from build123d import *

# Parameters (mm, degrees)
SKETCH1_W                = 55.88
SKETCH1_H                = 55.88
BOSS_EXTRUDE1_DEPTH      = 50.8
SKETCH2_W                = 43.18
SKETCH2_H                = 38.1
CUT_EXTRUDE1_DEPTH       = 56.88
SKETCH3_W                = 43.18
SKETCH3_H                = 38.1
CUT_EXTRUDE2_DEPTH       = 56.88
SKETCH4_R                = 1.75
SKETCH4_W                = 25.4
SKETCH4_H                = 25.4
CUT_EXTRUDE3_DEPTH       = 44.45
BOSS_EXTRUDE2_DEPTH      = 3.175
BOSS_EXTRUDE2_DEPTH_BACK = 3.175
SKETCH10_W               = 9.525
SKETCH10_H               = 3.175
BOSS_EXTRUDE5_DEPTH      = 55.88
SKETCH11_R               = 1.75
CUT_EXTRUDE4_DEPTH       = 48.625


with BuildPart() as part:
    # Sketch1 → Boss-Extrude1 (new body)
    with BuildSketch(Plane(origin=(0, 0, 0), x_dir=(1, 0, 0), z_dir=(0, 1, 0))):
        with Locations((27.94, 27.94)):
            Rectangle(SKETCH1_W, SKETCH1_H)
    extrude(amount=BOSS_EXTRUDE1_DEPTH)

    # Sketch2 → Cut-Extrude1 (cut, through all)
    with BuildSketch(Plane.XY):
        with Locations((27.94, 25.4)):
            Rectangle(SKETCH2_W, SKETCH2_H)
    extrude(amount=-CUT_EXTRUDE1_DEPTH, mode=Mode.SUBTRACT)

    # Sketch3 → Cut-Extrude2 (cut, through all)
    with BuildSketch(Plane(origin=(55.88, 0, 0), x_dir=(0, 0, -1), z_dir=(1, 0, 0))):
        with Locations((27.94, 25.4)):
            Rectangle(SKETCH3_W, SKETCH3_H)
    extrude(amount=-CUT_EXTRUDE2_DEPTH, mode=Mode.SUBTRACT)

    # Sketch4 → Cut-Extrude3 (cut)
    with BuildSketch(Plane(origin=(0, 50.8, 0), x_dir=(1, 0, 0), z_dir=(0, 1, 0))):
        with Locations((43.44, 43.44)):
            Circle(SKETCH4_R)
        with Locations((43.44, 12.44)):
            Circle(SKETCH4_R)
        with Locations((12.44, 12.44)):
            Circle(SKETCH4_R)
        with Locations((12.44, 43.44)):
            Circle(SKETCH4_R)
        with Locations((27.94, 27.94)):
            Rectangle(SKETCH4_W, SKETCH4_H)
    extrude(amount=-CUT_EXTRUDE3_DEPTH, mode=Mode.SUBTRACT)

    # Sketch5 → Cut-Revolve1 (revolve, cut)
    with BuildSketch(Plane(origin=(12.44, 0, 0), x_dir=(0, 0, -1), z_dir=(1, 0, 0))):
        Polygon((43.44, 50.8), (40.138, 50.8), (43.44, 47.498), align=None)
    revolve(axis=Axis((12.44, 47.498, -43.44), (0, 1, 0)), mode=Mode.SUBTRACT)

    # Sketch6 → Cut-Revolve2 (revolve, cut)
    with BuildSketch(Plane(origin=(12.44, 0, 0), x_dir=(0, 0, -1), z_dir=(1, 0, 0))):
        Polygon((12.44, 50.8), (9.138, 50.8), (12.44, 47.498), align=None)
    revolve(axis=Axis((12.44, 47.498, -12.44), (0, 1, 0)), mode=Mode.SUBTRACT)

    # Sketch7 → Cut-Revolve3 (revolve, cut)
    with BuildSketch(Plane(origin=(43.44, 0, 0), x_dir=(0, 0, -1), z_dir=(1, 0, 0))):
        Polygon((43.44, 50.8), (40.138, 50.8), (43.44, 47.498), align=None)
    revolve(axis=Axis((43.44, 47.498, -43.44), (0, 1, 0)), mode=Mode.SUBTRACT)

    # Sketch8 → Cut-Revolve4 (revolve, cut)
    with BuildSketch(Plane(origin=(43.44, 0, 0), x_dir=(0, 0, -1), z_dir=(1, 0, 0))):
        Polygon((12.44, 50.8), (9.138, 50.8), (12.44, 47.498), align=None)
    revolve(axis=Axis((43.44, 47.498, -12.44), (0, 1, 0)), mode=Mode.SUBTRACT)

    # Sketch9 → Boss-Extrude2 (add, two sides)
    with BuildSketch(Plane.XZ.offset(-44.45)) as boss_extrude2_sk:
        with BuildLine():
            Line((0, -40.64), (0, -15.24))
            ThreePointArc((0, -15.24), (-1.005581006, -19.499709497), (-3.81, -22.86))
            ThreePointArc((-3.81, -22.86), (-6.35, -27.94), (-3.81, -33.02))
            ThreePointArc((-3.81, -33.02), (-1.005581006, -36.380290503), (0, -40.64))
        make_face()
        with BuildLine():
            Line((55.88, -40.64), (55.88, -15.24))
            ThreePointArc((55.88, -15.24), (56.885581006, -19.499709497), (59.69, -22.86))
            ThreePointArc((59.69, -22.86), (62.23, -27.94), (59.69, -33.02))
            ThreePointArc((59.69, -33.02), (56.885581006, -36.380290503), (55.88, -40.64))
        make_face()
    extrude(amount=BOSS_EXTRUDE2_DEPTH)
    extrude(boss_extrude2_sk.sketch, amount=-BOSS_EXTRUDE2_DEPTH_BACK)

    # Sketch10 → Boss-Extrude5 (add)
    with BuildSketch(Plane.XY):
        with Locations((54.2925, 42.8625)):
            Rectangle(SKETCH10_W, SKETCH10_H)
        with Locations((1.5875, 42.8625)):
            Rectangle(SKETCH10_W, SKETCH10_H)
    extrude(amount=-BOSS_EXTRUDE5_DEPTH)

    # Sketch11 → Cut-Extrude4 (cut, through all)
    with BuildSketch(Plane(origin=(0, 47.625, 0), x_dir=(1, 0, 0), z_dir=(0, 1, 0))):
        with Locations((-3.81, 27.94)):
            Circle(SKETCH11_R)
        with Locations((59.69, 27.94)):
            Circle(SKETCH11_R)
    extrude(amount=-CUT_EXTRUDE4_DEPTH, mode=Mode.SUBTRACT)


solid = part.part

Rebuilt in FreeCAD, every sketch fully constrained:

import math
import FreeCAD as App
import Part
import Sketcher

V = App.Vector
Q = App.Units.Quantity


def add_polygon(sketch, points):
    """Adds a closed chain of lines whose ends are joined by coincident constraints."""
    first, n = sketch.GeometryCount, len(points)
    for a, b in zip(points, points[1:] + points[:1]):
        sketch.addGeometry(Part.LineSegment(App.Vector(*a, 0), App.Vector(*b, 0)), False)
    for i in range(n):
        sketch.addConstraint(Sketcher.Constraint("Coincident", first + i, 2, first + (i + 1) % n, 1))

doc = App.newDocument("Part")
body = doc.addObject("PartDesign::Body", "Body")

# Sketch on XZ plane
sketch1 = body.newObject("Sketcher::SketchObject", "Sketch")
sketch1.AttachmentSupport = (doc.getObject("XZ_Plane"), [""])
sketch1.MapMode = "FlatFace"
add_polygon(sketch1, [(0, -56), (0, 0), (56, 0), (56, -56)])  # lines 0-3
sketch1.addConstraint([
    Sketcher.Constraint("Vertical", 0),
    Sketcher.Constraint("Horizontal", 1),
    Sketcher.Constraint("Vertical", 2),
    Sketcher.Constraint("Horizontal", 3),
    Sketcher.Constraint("Coincident", 0, 2, -1, 1),
    Sketcher.Constraint("Equal", 3, 0),
    Sketcher.Constraint("DistanceX", 1, 1, 1, 2, Q("2.2 in")),
])
pad1 = body.newObject("PartDesign::Pad", "Pad")
pad1.Profile = sketch1
pad1.Length = Q("2 in")
pad1.Reversed = True

# Sketch on XY plane
sketch2 = body.newObject("Sketcher::SketchObject", "Sketch001")
sketch2.AttachmentSupport = (doc.getObject("XY_Plane"), [""])
sketch2.MapMode = "FlatFace"
add_polygon(sketch2, [(6, 44), (6, 6), (50, 6), (50, 44)])  # lines 0-3
sketch2.addConstraint([
    Sketcher.Constraint("Vertical", 0),
    Sketcher.Constraint("Horizontal", 1),
    Sketcher.Constraint("Vertical", 2),
    Sketcher.Constraint("Horizontal", 3),
    Sketcher.Constraint("DistanceX", 1, 1, 1, 2, Q("1.7 in")),
    Sketcher.Constraint("DistanceY", 0, 2, 0, 1, Q("1.5 in")),
    Sketcher.Constraint("DistanceX", -1, 1, 0, 2, Q("0.25 in")),
    Sketcher.Constraint("DistanceY", -1, 1, 0, 2, Q("0.25 in")),
])
pocket1 = body.newObject("PartDesign::Pocket", "Pocket")
pocket1.Profile = sketch2
pocket1.Type = "ThroughAll"

# Sketch on YZ plane
sketch3 = body.newObject("Sketcher::SketchObject", "Sketch002")
sketch3.AttachmentSupport = (doc.getObject("YZ_Plane"), [""])
sketch3.MapMode = "FlatFace"
sketch3.AttachmentOffset = App.Placement(V(0, 0, 2.2 * 25.4), App.Rotation())
add_polygon(sketch3, [(44, -6), (6, -6), (6, -50), (44, -50)])  # lines 0-3
sketch3.addConstraint([
    Sketcher.Constraint("Horizontal", 0),
    Sketcher.Constraint("Vertical", 1),
    Sketcher.Constraint("Horizontal", 2),
    Sketcher.Constraint("Vertical", 3),
    Sketcher.Constraint("DistanceX", 0, 2, 0, 1, Q("1.5 in")),
    Sketcher.Constraint("DistanceY", 1, 2, 1, 1, Q("1.7 in")),
    Sketcher.Constraint("DistanceX", -1, 1, 0, 2, Q("0.25 in")),
    Sketcher.Constraint("DistanceY", 0, 2, -1, 1, Q("0.25 in")),
])
pocket2 = body.newObject("PartDesign::Pocket", "Pocket001")
pocket2.Profile = sketch3
pocket2.Type = "ThroughAll"

# Sketch on XZ plane
sketch4 = body.newObject("Sketcher::SketchObject", "Sketch003")
sketch4.AttachmentSupport = (doc.getObject("XZ_Plane"), [""])
sketch4.MapMode = "FlatFace"
sketch4.AttachmentOffset = App.Placement(V(0, 0, -2 * 25.4), App.Rotation())
sketch4.addGeometry(Part.Circle(V(43.4, -43.4, 0), V(0, 0, 1), 1.8), False)  # 0
sketch4.addGeometry(Part.Circle(V(43.4, -12.4, 0), V(0, 0, 1), 1.8), False)  # 1
sketch4.addGeometry(Part.Circle(V(12.4, -12.4, 0), V(0, 0, 1), 1.8), False)  # 2
sketch4.addGeometry(Part.Circle(V(12.4, -43.4, 0), V(0, 0, 1), 1.8), False)  # 3
add_polygon(sketch4, [(15.2, -40.6), (15.2, -15.2), (40.6, -15.2), (40.6, -40.6)])  # lines 4-7
sketch4.addConstraint([
    Sketcher.Constraint("Vertical", 4),
    Sketcher.Constraint("Horizontal", 5),
    Sketcher.Constraint("Vertical", 6),
    Sketcher.Constraint("Horizontal", 7),
    Sketcher.Constraint("Equal", 0, 1),
    Sketcher.Constraint("Equal", 1, 2),
    Sketcher.Constraint("Equal", 2, 3),
    Sketcher.Constraint("Horizontal", 1, 3, 2, 3),
    Sketcher.Constraint("Horizontal", 0, 3, 3, 3),
    Sketcher.Constraint("Vertical", 0, 3, 1, 3),
    Sketcher.Constraint("Vertical", 2, 3, 3, 3),
    Sketcher.Constraint("Equal", 7, 4),
    Sketcher.Constraint("DistanceX", 5, 1, 5, 2, Q("1 in")),
    Sketcher.Constraint("DistanceX", -1, 1, 4, 2, Q("0.6 in")),
    Sketcher.Constraint("DistanceY", 4, 2, -1, 1, Q("0.6 in")),
    Sketcher.Constraint("Diameter", 0, 3.5),
    Sketcher.Constraint("DistanceX", -1, 1, 0, 3, 43.44),
    Sketcher.Constraint("DistanceY", 0, 3, -1, 1, 43.44),
    Sketcher.Constraint("DistanceY", 1, 3, -1, 1, 12.44),
    Sketcher.Constraint("DistanceX", -1, 1, 2, 3, 12.44),
])
pocket3 = body.newObject("PartDesign::Pocket", "Pocket002")
pocket3.Profile = sketch4
pocket3.Length = Q("1.75 in")
pocket3.Reversed = True

# Sketch on YZ plane
sketch5 = body.newObject("Sketcher::SketchObject", "Sketch004")
sketch5.AttachmentSupport = (doc.getObject("YZ_Plane"), [""])
sketch5.MapMode = "FlatFace"
sketch5.AttachmentOffset = App.Placement(V(0, 0, 12.44), App.Rotation())
add_polygon(sketch5, [(50.8, -43.4), (50.8, -40.1), (47.5, -43.4)])  # lines 0-2
sketch5.addGeometry(Part.LineSegment(V(47.5, -43.4, 0), V(50.8, -43.4, 0)), True)  # axis
sketch5.addConstraint([
    Sketcher.Constraint("Vertical", 0),
    Sketcher.Constraint("Horizontal", 2),
    Sketcher.Constraint("Horizontal", 3),
    Sketcher.Constraint("Coincident", 3, 1, 1, 2),
    Sketcher.Constraint("Vertical", 0, 2, 3, 2),
    Sketcher.Constraint("Equal", 3, 0),
    Sketcher.Constraint("DistanceX", -1, 1, 0, 2, Q("2 in")),
    Sketcher.Constraint("DistanceX", 2, 1, 2, 2, Q("0.13 in")),
    Sketcher.Constraint("DistanceY", 0, 2, -1, 1, 40.138),
])
groove = body.newObject("PartDesign::Groove", "Groove")
groove.Profile = sketch5
groove.ReferenceAxis = (sketch5, ["Axis0"])
groove.Angle = 360

# Sketch on YZ plane
sketch6 = body.newObject("Sketcher::SketchObject", "Sketch005")
sketch6.AttachmentSupport = (doc.getObject("YZ_Plane"), [""])
sketch6.MapMode = "FlatFace"
sketch6.AttachmentOffset = App.Placement(V(0, 0, 12.44), App.Rotation())
add_polygon(sketch6, [(50.8, -12.4), (50.8, -9.1), (47.5, -12.4)])  # lines 0-2
sketch6.addGeometry(Part.LineSegment(V(47.5, -12.4, 0), V(50.8, -12.4, 0)), True)  # axis
sketch6.addConstraint([
    Sketcher.Constraint("Vertical", 0),
    Sketcher.Constraint("Horizontal", 2),
    Sketcher.Constraint("Horizontal", 3),
    Sketcher.Constraint("Coincident", 3, 1, 1, 2),
    Sketcher.Constraint("Vertical", 0, 2, 3, 2),
    Sketcher.Constraint("Equal", 3, 0),
    Sketcher.Constraint("DistanceX", -1, 1, 0, 2, Q("2 in")),
    Sketcher.Constraint("DistanceX", 2, 1, 2, 2, Q("0.13 in")),
    Sketcher.Constraint("DistanceY", 0, 2, -1, 1, 9.138),
])
groove2 = body.newObject("PartDesign::Groove", "Groove001")
groove2.Profile = sketch6
groove2.ReferenceAxis = (sketch6, ["Axis0"])
groove2.Angle = 360

# Sketch on YZ plane
sketch7 = body.newObject("Sketcher::SketchObject", "Sketch006")
sketch7.AttachmentSupport = (doc.getObject("YZ_Plane"), [""])
sketch7.MapMode = "FlatFace"
sketch7.AttachmentOffset = App.Placement(V(0, 0, 43.44), App.Rotation())
add_polygon(sketch7, [(50.8, -43.4), (50.8, -40.1), (47.5, -43.4)])  # lines 0-2
sketch7.addGeometry(Part.LineSegment(V(47.5, -43.4, 0), V(50.8, -43.4, 0)), True)  # axis
sketch7.addConstraint([
    Sketcher.Constraint("Vertical", 0),
    Sketcher.Constraint("Horizontal", 2),
    Sketcher.Constraint("Horizontal", 3),
    Sketcher.Constraint("Coincident", 3, 1, 1, 2),
    Sketcher.Constraint("Vertical", 0, 2, 3, 2),
    Sketcher.Constraint("Equal", 3, 0),
    Sketcher.Constraint("DistanceX", -1, 1, 0, 2, Q("2 in")),
    Sketcher.Constraint("DistanceX", 2, 1, 2, 2, Q("0.13 in")),
    Sketcher.Constraint("DistanceY", 0, 2, -1, 1, 40.138),
])
groove3 = body.newObject("PartDesign::Groove", "Groove002")
groove3.Profile = sketch7
groove3.ReferenceAxis = (sketch7, ["Axis0"])
groove3.Angle = 360

# Sketch on YZ plane
sketch8 = body.newObject("Sketcher::SketchObject", "Sketch007")
sketch8.AttachmentSupport = (doc.getObject("YZ_Plane"), [""])
sketch8.MapMode = "FlatFace"
sketch8.AttachmentOffset = App.Placement(V(0, 0, 43.44), App.Rotation())
add_polygon(sketch8, [(50.8, -12.4), (50.8, -9.1), (47.5, -12.4)])  # lines 0-2
sketch8.addGeometry(Part.LineSegment(V(47.5, -12.4, 0), V(50.8, -12.4, 0)), True)  # axis
sketch8.addConstraint([
    Sketcher.Constraint("Vertical", 0),
    Sketcher.Constraint("Horizontal", 2),
    Sketcher.Constraint("Horizontal", 3),
    Sketcher.Constraint("Coincident", 3, 1, 1, 2),
    Sketcher.Constraint("Vertical", 0, 2, 3, 2),
    Sketcher.Constraint("Equal", 3, 0),
    Sketcher.Constraint("DistanceX", -1, 1, 0, 2, Q("2 in")),
    Sketcher.Constraint("DistanceX", 2, 1, 2, 2, Q("0.13 in")),
    Sketcher.Constraint("DistanceY", 0, 2, -1, 1, 9.138),
])
groove4 = body.newObject("PartDesign::Groove", "Groove003")
groove4.Profile = sketch8
groove4.ReferenceAxis = (sketch8, ["Axis0"])
groove4.Angle = 360

# Sketch on XZ plane
sketch9 = body.newObject("Sketcher::SketchObject", "Sketch008")
sketch9.AttachmentSupport = (doc.getObject("XZ_Plane"), [""])
sketch9.MapMode = "FlatFace"
sketch9.AttachmentOffset = App.Placement(V(0, 0, -1.75 * 25.4), App.Rotation())
sketch9.addGeometry([
    Part.LineSegment(V(0, -41, 0), V(0, -15, 0)),  # 0
    Part.ArcOfCircle(Part.Circle(V(-10, -15, 0), V(0, 0, 1), 10), math.radians(-53), math.radians(0)),  # 1
    Part.ArcOfCircle(Part.Circle(V(0, -28, 0), V(0, 0, 1), 6), math.radians(127), math.radians(233)),  # 2
    Part.ArcOfCircle(Part.Circle(V(-10, -41, 0), V(0, 0, 1), 10), math.radians(0), math.radians(53)),  # 3
    Part.LineSegment(V(56, -15, 0), V(56, -41, 0)),  # 4
    Part.ArcOfCircle(Part.Circle(V(65, -41, 0), V(0, 0, 1), 10), math.radians(127), math.radians(180)),  # 5
    Part.ArcOfCircle(Part.Circle(V(56, -28, 0), V(0, 0, 1), 6), math.radians(-53), math.radians(53)),  # 6
    Part.ArcOfCircle(Part.Circle(V(65, -15, 0), V(0, 0, 1), 10), math.radians(-180), math.radians(-127)),  # 7
], False)
sketch9.addConstraint([
    Sketcher.Constraint("Tangent", 0, 2, 1, 2),
    Sketcher.Constraint("Tangent", 1, 1, 2, 1),
    Sketcher.Constraint("Tangent", 2, 2, 3, 2),
    Sketcher.Constraint("Tangent", 3, 1, 0, 1),
    Sketcher.Constraint("Tangent", 4, 2, 5, 2),
    Sketcher.Constraint("Tangent", 5, 1, 6, 1),
    Sketcher.Constraint("Tangent", 6, 2, 7, 2),
    Sketcher.Constraint("Tangent", 7, 1, 4, 1),
    Sketcher.Constraint("Vertical", 0),
    Sketcher.Constraint("Vertical", 4),
    Sketcher.Constraint("Equal", 1, 3),
    Sketcher.Constraint("Equal", 3, 5),
    Sketcher.Constraint("Equal", 2, 6),
    Sketcher.Constraint("Equal", 5, 7),
    Sketcher.Constraint("PointOnObject", 2, 3, -2),
    Sketcher.Constraint("PointOnObject", 0, 2, -2),
    Sketcher.Constraint("Horizontal", 3, 3, 5, 3),
    Sketcher.Constraint("Horizontal", 2, 3, 6, 3),
    Sketcher.Constraint("DistanceY", 0, 1, 0, 2, Q("1 in")),
    Sketcher.Constraint("Radius", 2, Q("0.25 in")),
    Sketcher.Constraint("DistanceY", 1, 3, -1, 1, Q("0.6 in")),
    Sketcher.Constraint("DistanceX", -1, 1, 6, 3, Q("2.2 in")),
])
pad2 = body.newObject("PartDesign::Pad", "Pad001")
pad2.Profile = sketch9
pad2.Type = "TwoLengths"
pad2.Length = Q("0.125 in")
pad2.Length2 = Q("0.125 in")

# Sketch on XY plane
sketch10 = body.newObject("Sketcher::SketchObject", "Sketch009")
sketch10.AttachmentSupport = (doc.getObject("XY_Plane"), [""])
sketch10.MapMode = "FlatFace"
add_polygon(sketch10, [(49.5, 44.5), (49.5, 41.3), (59.1, 41.3), (59.1, 44.5)])  # lines 0-3
add_polygon(sketch10, [(-3.2, 44.5), (-3.2, 41.3), (6.3, 41.3), (6.3, 44.5)])  # lines 4-7
sketch10.addConstraint([
    Sketcher.Constraint("Vertical", 0),
    Sketcher.Constraint("Horizontal", 1),
    Sketcher.Constraint("Vertical", 2),
    Sketcher.Constraint("Horizontal", 3),
    Sketcher.Constraint("Vertical", 4),
    Sketcher.Constraint("Horizontal", 5),
    Sketcher.Constraint("Vertical", 6),
    Sketcher.Constraint("Horizontal", 7),
    Sketcher.Constraint("Horizontal", 1, 2, 4, 2),
    Sketcher.Constraint("Horizontal", 3, 2, 6, 2),
    Sketcher.Constraint("Equal", 3, 5),
    Sketcher.Constraint("DistanceX", 5, 2, 0, 2, Q("1.7 in")),
    Sketcher.Constraint("DistanceX", 1, 1, 1, 2, Q("0.375 in")),
    Sketcher.Constraint("DistanceY", 0, 2, 0, 1, Q("0.125 in")),
    Sketcher.Constraint("DistanceX", -1, 1, 0, 2, Q("1.95 in")),
    Sketcher.Constraint("DistanceY", -1, 1, 2, 2, Q("1.75 in")),
])
pad3 = body.newObject("PartDesign::Pad", "Pad002")
pad3.Profile = sketch10
pad3.Length = Q("2.2 in")
pad3.Reversed = True

# Sketch on XZ plane
sketch11 = body.newObject("Sketcher::SketchObject", "Sketch010")
sketch11.AttachmentSupport = (doc.getObject("XZ_Plane"), [""])
sketch11.MapMode = "FlatFace"
sketch11.AttachmentOffset = App.Placement(V(0, 0, -1.875 * 25.4), App.Rotation())
sketch11.addGeometry([
    Part.Circle(V(-3.8, -27.9, 0), V(0, 0, 1), 1.8),
    Part.Circle(V(59.7, -27.9, 0), V(0, 0, 1), 1.8),
], False)
sketch11.addConstraint([
    Sketcher.Constraint("Equal", 0, 1),
    Sketcher.Constraint("Horizontal", 0, 3, 1, 3),
    Sketcher.Constraint("DistanceY", 0, 3, -1, 1, Q("1.1 in")),
    Sketcher.Constraint("DistanceX", 0, 3, 1, 3, Q("2.5 in")),
    Sketcher.Constraint("Diameter", 0, 3.5),
    Sketcher.Constraint("DistanceX", 0, 3, -1, 1, Q("0.15 in")),
])
pocket4 = body.newObject("PartDesign::Pocket", "Pocket003")
pocket4.Profile = sketch11
pocket4.Type = "ThroughAll"
pocket4.Reversed = True

doc.recompute()
